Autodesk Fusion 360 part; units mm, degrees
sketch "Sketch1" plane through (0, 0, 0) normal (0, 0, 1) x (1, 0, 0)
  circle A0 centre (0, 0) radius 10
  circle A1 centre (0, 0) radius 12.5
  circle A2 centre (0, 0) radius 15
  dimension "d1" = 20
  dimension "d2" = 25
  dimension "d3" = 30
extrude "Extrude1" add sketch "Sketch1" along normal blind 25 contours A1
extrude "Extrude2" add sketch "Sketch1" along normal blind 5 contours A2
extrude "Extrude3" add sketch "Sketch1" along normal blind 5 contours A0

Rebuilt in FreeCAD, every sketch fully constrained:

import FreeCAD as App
import Part
import Sketcher

V = App.Vector
Q = App.Units.Quantity

doc = App.newDocument("Part")
params = doc.addObject("Spreadsheet::Sheet", "Params")
for row, (alias, value) in enumerate([
    ("sketch1_diameter", "25 mm"),
    ("sketch1_diameter2", "20 mm"),
    ("pad1_length", "25 mm"),
    ("sketch2_diameter", "30 mm"),
    ("sketch2_diameter2", "25 mm"),
    ("pad2_length", "5 mm"),
    ("sketch3_diameter", "20 mm"),
    ("pad3_length", "5 mm"),
], start=1):
    params.set(f"A{row}", alias)
    params.set(f"B{row}", "=" + value)
    params.setAlias(f"B{row}", alias)

body = doc.addObject("PartDesign::Body", "Body")

sketch1 = body.newObject("Sketcher::SketchObject", "Sketch")
sketch1.AttachmentSupport = (doc.getObject("XY_Plane"), [""])
sketch1.MapMode = "FlatFace"
sketch1.addGeometry([
    Part.Circle(V(0, 0, 0), V(0, 0, 1), 12),
    Part.Circle(V(0, 0, 0), V(0, 0, 1), 10),
], False)
sketch1.addConstraint([
    Sketcher.Constraint("Coincident", 0, 3, -1, 1),
    Sketcher.Constraint("Coincident", 1, 3, -1, 1),
    Sketcher.Constraint("Diameter", 0, Q("25 mm")),
    Sketcher.Constraint("Diameter", 1, Q("20 mm")),
])
sketch1.setExpression("Constraints[2]", "Params.sketch1_diameter")
sketch1.setExpression("Constraints[3]", "Params.sketch1_diameter2")
pad1 = body.newObject("PartDesign::Pad", "Pad")
pad1.Profile = sketch1
pad1.setExpression("Length", "Params.pad1_length")

sketch2 = body.newObject("Sketcher::SketchObject", "Sketch001")
sketch2.AttachmentSupport = (doc.getObject("XY_Plane"), [""])
sketch2.MapMode = "FlatFace"
sketch2.addGeometry([
    Part.Circle(V(0, 0, 0), V(0, 0, 1), 15),
    Part.Circle(V(0, 0, 0), V(0, 0, 1), 12),
], False)
sketch2.addConstraint([
    Sketcher.Constraint("Coincident", 0, 3, -1, 1),
    Sketcher.Constraint("Coincident", 1, 3, -1, 1),
    Sketcher.Constraint("Diameter", 0, Q("30 mm")),
    Sketcher.Constraint("Diameter", 1, Q("25 mm")),
])
sketch2.setExpression("Constraints[2]", "Params.sketch2_diameter")
sketch2.setExpression("Constraints[3]", "Params.sketch2_diameter2")
pad2 = body.newObject("PartDesign::Pad", "Pad001")
pad2.Profile = sketch2
pad2.setExpression("Length", "Params.pad2_length")

sketch3 = body.newObject("Sketcher::SketchObject", "Sketch002")
sketch3.AttachmentSupport = (doc.getObject("XY_Plane"), [""])
sketch3.MapMode = "FlatFace"
sketch3.addGeometry(Part.Circle(V(0, 0, 0), V(0, 0, 1), 10), False)
sketch3.addConstraint([
    Sketcher.Constraint("Coincident", 0, 3, -1, 1),
    Sketcher.Constraint("Diameter", 0, Q("20 mm")),
])
sketch3.setExpression("Constraints[1]", "Params.sketch3_diameter")
pad3 = body.newObject("PartDesign::Pad", "Pad002")
pad3.Profile = sketch3
pad3.setExpression("Length", "Params.pad3_length")

doc.recompute()
